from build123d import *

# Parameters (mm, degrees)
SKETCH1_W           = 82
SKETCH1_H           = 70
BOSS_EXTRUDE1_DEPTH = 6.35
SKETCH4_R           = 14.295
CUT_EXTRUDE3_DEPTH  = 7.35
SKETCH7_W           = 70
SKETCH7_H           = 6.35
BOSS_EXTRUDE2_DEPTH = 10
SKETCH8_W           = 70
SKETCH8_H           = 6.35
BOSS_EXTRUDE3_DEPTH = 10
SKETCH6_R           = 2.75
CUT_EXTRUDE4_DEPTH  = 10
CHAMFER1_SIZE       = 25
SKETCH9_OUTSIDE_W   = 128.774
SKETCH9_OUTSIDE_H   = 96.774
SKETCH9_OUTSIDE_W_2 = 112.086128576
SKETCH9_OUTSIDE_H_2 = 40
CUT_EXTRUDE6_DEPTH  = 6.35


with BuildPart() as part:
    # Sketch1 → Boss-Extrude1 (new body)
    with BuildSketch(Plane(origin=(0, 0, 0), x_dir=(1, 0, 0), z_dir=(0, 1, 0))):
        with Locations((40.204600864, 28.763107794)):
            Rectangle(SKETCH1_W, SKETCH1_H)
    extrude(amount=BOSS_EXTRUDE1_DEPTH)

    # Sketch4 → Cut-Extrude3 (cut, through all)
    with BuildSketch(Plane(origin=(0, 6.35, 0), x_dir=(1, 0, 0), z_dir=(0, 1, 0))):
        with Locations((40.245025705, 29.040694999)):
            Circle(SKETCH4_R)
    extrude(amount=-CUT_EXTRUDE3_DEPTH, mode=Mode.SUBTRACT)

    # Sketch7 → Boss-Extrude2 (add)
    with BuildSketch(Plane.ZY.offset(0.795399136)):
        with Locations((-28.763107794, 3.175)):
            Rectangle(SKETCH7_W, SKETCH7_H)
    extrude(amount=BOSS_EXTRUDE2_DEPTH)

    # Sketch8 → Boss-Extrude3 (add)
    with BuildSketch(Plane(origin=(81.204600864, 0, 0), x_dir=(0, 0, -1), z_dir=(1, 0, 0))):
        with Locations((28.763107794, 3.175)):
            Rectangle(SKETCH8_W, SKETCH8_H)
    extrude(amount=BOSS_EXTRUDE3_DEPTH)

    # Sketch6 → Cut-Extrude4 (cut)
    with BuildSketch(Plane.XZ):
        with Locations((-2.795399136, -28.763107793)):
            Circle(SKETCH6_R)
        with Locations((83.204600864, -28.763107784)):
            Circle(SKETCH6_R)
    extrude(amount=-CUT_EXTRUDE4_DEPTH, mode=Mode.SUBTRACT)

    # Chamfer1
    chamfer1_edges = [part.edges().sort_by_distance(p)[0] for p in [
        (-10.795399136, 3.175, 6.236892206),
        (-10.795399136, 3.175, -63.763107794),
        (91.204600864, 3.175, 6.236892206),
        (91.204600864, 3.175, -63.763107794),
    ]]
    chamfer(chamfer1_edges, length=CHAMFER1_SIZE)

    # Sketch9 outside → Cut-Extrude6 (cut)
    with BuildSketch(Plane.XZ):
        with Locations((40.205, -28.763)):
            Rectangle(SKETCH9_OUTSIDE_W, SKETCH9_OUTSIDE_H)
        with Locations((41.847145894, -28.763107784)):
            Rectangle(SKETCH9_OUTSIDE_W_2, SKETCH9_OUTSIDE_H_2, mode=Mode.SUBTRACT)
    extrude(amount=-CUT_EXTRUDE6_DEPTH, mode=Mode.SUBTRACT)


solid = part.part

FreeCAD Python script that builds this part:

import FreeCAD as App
import Part
import Sketcher

V = App.Vector
Q = App.Units.Quantity


def edges_at(feature, points):
    """Names of the edges that pass closest to the given points."""
    edges = feature.Shape.Edges
    near = lambda p: min(range(len(edges)), key=lambda i: edges[i].distToShape(Part.Vertex(*p))[0])
    return sorted({f"Edge{near(p) + 1}" for p in points})


def add_polygon(sketch, points):
    """Adds a closed chain of lines whose ends are joined by coincident constraints."""
    first, n = sketch.GeometryCount, len(points)
    for a, b in zip(points, points[1:] + points[:1]):
        sketch.addGeometry(Part.LineSegment(App.Vector(*a, 0), App.Vector(*b, 0)), False)
    for i in range(n):
        sketch.addConstraint(Sketcher.Constraint("Coincident", first + i, 2, first + (i + 1) % n, 1))

doc = App.newDocument("Part")
body = doc.addObject("PartDesign::Body", "Body")

# Sketch on XZ plane
sketch1 = doc.addObject("Sketcher::SketchObject", "Sketch")
body.addObject(sketch1)
sketch1.AttachmentSupport = (doc.XZ_Plane, [""])
sketch1.MapMode = "FlatFace"
add_polygon(sketch1, [(-0.795399, -63.763108), (-0.795399, 6.236892), (81.204601, 6.236892), (81.204601, -63.763108)])  # lines 0-3
sketch1.addConstraint(Sketcher.Constraint("Vertical", 0))
sketch1.addConstraint(Sketcher.Constraint("Horizontal", 1))
sketch1.addConstraint(Sketcher.Constraint("Vertical", 2))
sketch1.addConstraint(Sketcher.Constraint("Horizontal", 3))
sketch1.addConstraint(Sketcher.Constraint("DistanceX", 1, 1, 1, 2, Q("82 mm")))
sketch1.addConstraint(Sketcher.Constraint("DistanceY", 0, 1, 0, 2, Q("70 mm")))
sketch1.addConstraint(Sketcher.Constraint("DistanceX", 0, 2, -1, 1, Q("0.795399 mm")))
sketch1.addConstraint(Sketcher.Constraint("DistanceY", -1, 1, 0, 2, Q("6.236892 mm")))
pad1 = doc.addObject("PartDesign::Pad", "Pad")
body.addObject(pad1)
pad1.Profile = sketch1
pad1.Length = 6.35
pad1.Reversed = True

# Sketch on XZ plane
sketch2 = doc.addObject("Sketcher::SketchObject", "Sketch001")
body.addObject(sketch2)
sketch2.AttachmentSupport = (doc.XZ_Plane, [""])
sketch2.MapMode = "FlatFace"
sketch2.AttachmentOffset = App.Placement(V(0, 0, -6.35), App.Rotation())
sketch2.addGeometry(Part.Circle(V(40.245026, -29.040695, 0), V(0, 0, 1), 14.295), False)
sketch2.addConstraint(Sketcher.Constraint("Diameter", 0, Q("28.59 mm")))
sketch2.addConstraint(Sketcher.Constraint("DistanceX", -1, 1, 0, 3, Q("40.245026 mm")))
sketch2.addConstraint(Sketcher.Constraint("DistanceY", 0, 3, -1, 1, Q("29.040695 mm")))
pocket1 = doc.addObject("PartDesign::Pocket", "Pocket")
body.addObject(pocket1)
pocket1.Profile = sketch2
pocket1.Type = "ThroughAll"
pocket1.Reversed = True

# Sketch on YZ plane
sketch3 = doc.addObject("Sketcher::SketchObject", "Sketch002")
body.addObject(sketch3)
sketch3.AttachmentSupport = (doc.YZ_Plane, [""])
sketch3.MapMode = "FlatFace"
sketch3.AttachmentOffset = App.Placement(V(0, 0, -0.795399), App.Rotation())
add_polygon(sketch3, [(6.35, -63.763108), (0, -63.763108), (0, 6.236892), (6.35, 6.236892)])  # lines 0-3
sketch3.addConstraint(Sketcher.Constraint("Horizontal", 0))
sketch3.addConstraint(Sketcher.Constraint("Vertical", 1))
sketch3.addConstraint(Sketcher.Constraint("Horizontal", 2))
sketch3.addConstraint(Sketcher.Constraint("Vertical", 3))
sketch3.addConstraint(Sketcher.Constraint("PointOnObject", 0, 2, -2))
sketch3.addConstraint(Sketcher.Constraint("DistanceY", 1, 1, 1, 2, Q("70 mm")))
sketch3.addConstraint(Sketcher.Constraint("DistanceX", 0, 2, 0, 1, Q("6.35 mm")))
sketch3.addConstraint(Sketcher.Constraint("DistanceY", 0, 2, -1, 1, Q("63.763108 mm")))
pad2 = doc.addObject("PartDesign::Pad", "Pad001")
body.addObject(pad2)
pad2.Profile = sketch3
pad2.Length = 10
pad2.Reversed = True

# Sketch on YZ plane
sketch4 = doc.addObject("Sketcher::SketchObject", "Sketch003")
body.addObject(sketch4)
sketch4.AttachmentSupport = (doc.YZ_Plane, [""])
sketch4.MapMode = "FlatFace"
sketch4.AttachmentOffset = App.Placement(V(0, 0, 81.204601), App.Rotation())
add_polygon(sketch4, [(6.35, 6.236892), (0, 6.236892), (0, -63.763108), (6.35, -63.763108)])  # lines 0-3
sketch4.addConstraint(Sketcher.Constraint("Horizontal", 0))
sketch4.addConstraint(Sketcher.Constraint("Vertical", 1))
sketch4.addConstraint(Sketcher.Constraint("Horizontal", 2))
sketch4.addConstraint(Sketcher.Constraint("Vertical", 3))
sketch4.addConstraint(Sketcher.Constraint("PointOnObject", 0, 2, -2))
sketch4.addConstraint(Sketcher.Constraint("DistanceY", 1, 2, 1, 1, Q("70 mm")))
sketch4.addConstraint(Sketcher.Constraint("DistanceX", 0, 2, 0, 1, Q("6.35 mm")))
sketch4.addConstraint(Sketcher.Constraint("DistanceY", -1, 1, 0, 2, Q("6.236892 mm")))
pad3 = doc.addObject("PartDesign::Pad", "Pad002")
body.addObject(pad3)
pad3.Profile = sketch4
pad3.Length = 10

# Sketch on XZ plane
sketch5 = doc.addObject("Sketcher::SketchObject", "Sketch004")
body.addObject(sketch5)
sketch5.AttachmentSupport = (doc.XZ_Plane, [""])
sketch5.MapMode = "FlatFace"
sketch5.addGeometry(Part.Circle(V(-2.795399, -28.763108, 0), V(0, 0, 1), 2.75), False)
sketch5.addGeometry(Part.Circle(V(83.204601, -28.763108, 0), V(0, 0, 1), 2.75), False)
sketch5.addConstraint(Sketcher.Constraint("Equal", 0, 1))
sketch5.addConstraint(Sketcher.Constraint("Horizontal", 0, 3, 1, 3))
sketch5.addConstraint(Sketcher.Constraint("Diameter", 0, Q("5.5 mm")))
sketch5.addConstraint(Sketcher.Constraint("DistanceX", 0, 3, 1, 3, Q("86 mm")))
sketch5.addConstraint(Sketcher.Constraint("DistanceX", 0, 3, -1, 1, Q("2.795399 mm")))
sketch5.addConstraint(Sketcher.Constraint("DistanceY", 0, 3, -1, 1, Q("28.763108 mm")))
pocket2 = doc.addObject("PartDesign::Pocket", "Pocket001")
body.addObject(pocket2)
pocket2.Profile = sketch5
pocket2.Length = 10
doc.recompute()

chamfer = doc.addObject("PartDesign::Chamfer", "Chamfer")
body.addObject(chamfer)
chamfer.Base = (pocket2, edges_at(pocket2, [
    (-10.795, 3.175, 6.237),
    (-10.795, 3.175, -63.763),
    (91.205, 3.175, 6.237),
    (91.205, 3.175, -63.763),
]))
chamfer.Size = 25

# Sketch on XZ plane
sketch6 = doc.addObject("Sketcher::SketchObject", "Sketch005")
body.addObject(sketch6)
sketch6.AttachmentSupport = (doc.XZ_Plane, [""])
sketch6.MapMode = "FlatFace"
add_polygon(sketch6, [(-24.182, 19.624), (-24.182, -77.15), (104.592, -77.15), (104.592, 19.624)])  # lines 0-3
add_polygon(sketch6, [(97.89021, -48.763108), (-14.195918, -48.763108), (-14.195918, -8.763108), (97.89021, -8.763108)])  # lines 4-7
sketch6.addConstraint(Sketcher.Constraint("Vertical", 0))
sketch6.addConstraint(Sketcher.Constraint("Horizontal", 1))
sketch6.addConstraint(Sketcher.Constraint("Vertical", 2))
sketch6.addConstraint(Sketcher.Constraint("Horizontal", 3))
sketch6.addConstraint(Sketcher.Constraint("Horizontal", 4))
sketch6.addConstraint(Sketcher.Constraint("Vertical", 5))
sketch6.addConstraint(Sketcher.Constraint("Horizontal", 6))
sketch6.addConstraint(Sketcher.Constraint("Vertical", 7))
sketch6.addConstraint(Sketcher.Constraint("DistanceY", 5, 1, 5, 2, Q("40 mm")))
sketch6.addConstraint(Sketcher.Constraint("DistanceX", 1, 1, 1, 2, Q("128.774 mm")))
sketch6.addConstraint(Sketcher.Constraint("DistanceY", 0, 2, 0, 1, Q("96.774 mm")))
sketch6.addConstraint(Sketcher.Constraint("DistanceY", 0, 2, -1, 1, Q("77.15 mm")))
sketch6.addConstraint(Sketcher.Constraint("DistanceX", 0, 2, -1, 1, Q("24.182 mm")))
sketch6.addConstraint(Sketcher.Constraint("DistanceX", 4, 2, 4, 1, Q("112.086129 mm")))
sketch6.addConstraint(Sketcher.Constraint("DistanceX", 4, 2, -1, 1, Q("14.195918 mm")))
sketch6.addConstraint(Sketcher.Constraint("DistanceY", 4, 2, -1, 1, Q("48.763108 mm")))
pocket3 = doc.addObject("PartDesign::Pocket", "Pocket002")
body.addObject(pocket3)
pocket3.Profile = sketch6
pocket3.Length = 6.35

doc.recompute()
